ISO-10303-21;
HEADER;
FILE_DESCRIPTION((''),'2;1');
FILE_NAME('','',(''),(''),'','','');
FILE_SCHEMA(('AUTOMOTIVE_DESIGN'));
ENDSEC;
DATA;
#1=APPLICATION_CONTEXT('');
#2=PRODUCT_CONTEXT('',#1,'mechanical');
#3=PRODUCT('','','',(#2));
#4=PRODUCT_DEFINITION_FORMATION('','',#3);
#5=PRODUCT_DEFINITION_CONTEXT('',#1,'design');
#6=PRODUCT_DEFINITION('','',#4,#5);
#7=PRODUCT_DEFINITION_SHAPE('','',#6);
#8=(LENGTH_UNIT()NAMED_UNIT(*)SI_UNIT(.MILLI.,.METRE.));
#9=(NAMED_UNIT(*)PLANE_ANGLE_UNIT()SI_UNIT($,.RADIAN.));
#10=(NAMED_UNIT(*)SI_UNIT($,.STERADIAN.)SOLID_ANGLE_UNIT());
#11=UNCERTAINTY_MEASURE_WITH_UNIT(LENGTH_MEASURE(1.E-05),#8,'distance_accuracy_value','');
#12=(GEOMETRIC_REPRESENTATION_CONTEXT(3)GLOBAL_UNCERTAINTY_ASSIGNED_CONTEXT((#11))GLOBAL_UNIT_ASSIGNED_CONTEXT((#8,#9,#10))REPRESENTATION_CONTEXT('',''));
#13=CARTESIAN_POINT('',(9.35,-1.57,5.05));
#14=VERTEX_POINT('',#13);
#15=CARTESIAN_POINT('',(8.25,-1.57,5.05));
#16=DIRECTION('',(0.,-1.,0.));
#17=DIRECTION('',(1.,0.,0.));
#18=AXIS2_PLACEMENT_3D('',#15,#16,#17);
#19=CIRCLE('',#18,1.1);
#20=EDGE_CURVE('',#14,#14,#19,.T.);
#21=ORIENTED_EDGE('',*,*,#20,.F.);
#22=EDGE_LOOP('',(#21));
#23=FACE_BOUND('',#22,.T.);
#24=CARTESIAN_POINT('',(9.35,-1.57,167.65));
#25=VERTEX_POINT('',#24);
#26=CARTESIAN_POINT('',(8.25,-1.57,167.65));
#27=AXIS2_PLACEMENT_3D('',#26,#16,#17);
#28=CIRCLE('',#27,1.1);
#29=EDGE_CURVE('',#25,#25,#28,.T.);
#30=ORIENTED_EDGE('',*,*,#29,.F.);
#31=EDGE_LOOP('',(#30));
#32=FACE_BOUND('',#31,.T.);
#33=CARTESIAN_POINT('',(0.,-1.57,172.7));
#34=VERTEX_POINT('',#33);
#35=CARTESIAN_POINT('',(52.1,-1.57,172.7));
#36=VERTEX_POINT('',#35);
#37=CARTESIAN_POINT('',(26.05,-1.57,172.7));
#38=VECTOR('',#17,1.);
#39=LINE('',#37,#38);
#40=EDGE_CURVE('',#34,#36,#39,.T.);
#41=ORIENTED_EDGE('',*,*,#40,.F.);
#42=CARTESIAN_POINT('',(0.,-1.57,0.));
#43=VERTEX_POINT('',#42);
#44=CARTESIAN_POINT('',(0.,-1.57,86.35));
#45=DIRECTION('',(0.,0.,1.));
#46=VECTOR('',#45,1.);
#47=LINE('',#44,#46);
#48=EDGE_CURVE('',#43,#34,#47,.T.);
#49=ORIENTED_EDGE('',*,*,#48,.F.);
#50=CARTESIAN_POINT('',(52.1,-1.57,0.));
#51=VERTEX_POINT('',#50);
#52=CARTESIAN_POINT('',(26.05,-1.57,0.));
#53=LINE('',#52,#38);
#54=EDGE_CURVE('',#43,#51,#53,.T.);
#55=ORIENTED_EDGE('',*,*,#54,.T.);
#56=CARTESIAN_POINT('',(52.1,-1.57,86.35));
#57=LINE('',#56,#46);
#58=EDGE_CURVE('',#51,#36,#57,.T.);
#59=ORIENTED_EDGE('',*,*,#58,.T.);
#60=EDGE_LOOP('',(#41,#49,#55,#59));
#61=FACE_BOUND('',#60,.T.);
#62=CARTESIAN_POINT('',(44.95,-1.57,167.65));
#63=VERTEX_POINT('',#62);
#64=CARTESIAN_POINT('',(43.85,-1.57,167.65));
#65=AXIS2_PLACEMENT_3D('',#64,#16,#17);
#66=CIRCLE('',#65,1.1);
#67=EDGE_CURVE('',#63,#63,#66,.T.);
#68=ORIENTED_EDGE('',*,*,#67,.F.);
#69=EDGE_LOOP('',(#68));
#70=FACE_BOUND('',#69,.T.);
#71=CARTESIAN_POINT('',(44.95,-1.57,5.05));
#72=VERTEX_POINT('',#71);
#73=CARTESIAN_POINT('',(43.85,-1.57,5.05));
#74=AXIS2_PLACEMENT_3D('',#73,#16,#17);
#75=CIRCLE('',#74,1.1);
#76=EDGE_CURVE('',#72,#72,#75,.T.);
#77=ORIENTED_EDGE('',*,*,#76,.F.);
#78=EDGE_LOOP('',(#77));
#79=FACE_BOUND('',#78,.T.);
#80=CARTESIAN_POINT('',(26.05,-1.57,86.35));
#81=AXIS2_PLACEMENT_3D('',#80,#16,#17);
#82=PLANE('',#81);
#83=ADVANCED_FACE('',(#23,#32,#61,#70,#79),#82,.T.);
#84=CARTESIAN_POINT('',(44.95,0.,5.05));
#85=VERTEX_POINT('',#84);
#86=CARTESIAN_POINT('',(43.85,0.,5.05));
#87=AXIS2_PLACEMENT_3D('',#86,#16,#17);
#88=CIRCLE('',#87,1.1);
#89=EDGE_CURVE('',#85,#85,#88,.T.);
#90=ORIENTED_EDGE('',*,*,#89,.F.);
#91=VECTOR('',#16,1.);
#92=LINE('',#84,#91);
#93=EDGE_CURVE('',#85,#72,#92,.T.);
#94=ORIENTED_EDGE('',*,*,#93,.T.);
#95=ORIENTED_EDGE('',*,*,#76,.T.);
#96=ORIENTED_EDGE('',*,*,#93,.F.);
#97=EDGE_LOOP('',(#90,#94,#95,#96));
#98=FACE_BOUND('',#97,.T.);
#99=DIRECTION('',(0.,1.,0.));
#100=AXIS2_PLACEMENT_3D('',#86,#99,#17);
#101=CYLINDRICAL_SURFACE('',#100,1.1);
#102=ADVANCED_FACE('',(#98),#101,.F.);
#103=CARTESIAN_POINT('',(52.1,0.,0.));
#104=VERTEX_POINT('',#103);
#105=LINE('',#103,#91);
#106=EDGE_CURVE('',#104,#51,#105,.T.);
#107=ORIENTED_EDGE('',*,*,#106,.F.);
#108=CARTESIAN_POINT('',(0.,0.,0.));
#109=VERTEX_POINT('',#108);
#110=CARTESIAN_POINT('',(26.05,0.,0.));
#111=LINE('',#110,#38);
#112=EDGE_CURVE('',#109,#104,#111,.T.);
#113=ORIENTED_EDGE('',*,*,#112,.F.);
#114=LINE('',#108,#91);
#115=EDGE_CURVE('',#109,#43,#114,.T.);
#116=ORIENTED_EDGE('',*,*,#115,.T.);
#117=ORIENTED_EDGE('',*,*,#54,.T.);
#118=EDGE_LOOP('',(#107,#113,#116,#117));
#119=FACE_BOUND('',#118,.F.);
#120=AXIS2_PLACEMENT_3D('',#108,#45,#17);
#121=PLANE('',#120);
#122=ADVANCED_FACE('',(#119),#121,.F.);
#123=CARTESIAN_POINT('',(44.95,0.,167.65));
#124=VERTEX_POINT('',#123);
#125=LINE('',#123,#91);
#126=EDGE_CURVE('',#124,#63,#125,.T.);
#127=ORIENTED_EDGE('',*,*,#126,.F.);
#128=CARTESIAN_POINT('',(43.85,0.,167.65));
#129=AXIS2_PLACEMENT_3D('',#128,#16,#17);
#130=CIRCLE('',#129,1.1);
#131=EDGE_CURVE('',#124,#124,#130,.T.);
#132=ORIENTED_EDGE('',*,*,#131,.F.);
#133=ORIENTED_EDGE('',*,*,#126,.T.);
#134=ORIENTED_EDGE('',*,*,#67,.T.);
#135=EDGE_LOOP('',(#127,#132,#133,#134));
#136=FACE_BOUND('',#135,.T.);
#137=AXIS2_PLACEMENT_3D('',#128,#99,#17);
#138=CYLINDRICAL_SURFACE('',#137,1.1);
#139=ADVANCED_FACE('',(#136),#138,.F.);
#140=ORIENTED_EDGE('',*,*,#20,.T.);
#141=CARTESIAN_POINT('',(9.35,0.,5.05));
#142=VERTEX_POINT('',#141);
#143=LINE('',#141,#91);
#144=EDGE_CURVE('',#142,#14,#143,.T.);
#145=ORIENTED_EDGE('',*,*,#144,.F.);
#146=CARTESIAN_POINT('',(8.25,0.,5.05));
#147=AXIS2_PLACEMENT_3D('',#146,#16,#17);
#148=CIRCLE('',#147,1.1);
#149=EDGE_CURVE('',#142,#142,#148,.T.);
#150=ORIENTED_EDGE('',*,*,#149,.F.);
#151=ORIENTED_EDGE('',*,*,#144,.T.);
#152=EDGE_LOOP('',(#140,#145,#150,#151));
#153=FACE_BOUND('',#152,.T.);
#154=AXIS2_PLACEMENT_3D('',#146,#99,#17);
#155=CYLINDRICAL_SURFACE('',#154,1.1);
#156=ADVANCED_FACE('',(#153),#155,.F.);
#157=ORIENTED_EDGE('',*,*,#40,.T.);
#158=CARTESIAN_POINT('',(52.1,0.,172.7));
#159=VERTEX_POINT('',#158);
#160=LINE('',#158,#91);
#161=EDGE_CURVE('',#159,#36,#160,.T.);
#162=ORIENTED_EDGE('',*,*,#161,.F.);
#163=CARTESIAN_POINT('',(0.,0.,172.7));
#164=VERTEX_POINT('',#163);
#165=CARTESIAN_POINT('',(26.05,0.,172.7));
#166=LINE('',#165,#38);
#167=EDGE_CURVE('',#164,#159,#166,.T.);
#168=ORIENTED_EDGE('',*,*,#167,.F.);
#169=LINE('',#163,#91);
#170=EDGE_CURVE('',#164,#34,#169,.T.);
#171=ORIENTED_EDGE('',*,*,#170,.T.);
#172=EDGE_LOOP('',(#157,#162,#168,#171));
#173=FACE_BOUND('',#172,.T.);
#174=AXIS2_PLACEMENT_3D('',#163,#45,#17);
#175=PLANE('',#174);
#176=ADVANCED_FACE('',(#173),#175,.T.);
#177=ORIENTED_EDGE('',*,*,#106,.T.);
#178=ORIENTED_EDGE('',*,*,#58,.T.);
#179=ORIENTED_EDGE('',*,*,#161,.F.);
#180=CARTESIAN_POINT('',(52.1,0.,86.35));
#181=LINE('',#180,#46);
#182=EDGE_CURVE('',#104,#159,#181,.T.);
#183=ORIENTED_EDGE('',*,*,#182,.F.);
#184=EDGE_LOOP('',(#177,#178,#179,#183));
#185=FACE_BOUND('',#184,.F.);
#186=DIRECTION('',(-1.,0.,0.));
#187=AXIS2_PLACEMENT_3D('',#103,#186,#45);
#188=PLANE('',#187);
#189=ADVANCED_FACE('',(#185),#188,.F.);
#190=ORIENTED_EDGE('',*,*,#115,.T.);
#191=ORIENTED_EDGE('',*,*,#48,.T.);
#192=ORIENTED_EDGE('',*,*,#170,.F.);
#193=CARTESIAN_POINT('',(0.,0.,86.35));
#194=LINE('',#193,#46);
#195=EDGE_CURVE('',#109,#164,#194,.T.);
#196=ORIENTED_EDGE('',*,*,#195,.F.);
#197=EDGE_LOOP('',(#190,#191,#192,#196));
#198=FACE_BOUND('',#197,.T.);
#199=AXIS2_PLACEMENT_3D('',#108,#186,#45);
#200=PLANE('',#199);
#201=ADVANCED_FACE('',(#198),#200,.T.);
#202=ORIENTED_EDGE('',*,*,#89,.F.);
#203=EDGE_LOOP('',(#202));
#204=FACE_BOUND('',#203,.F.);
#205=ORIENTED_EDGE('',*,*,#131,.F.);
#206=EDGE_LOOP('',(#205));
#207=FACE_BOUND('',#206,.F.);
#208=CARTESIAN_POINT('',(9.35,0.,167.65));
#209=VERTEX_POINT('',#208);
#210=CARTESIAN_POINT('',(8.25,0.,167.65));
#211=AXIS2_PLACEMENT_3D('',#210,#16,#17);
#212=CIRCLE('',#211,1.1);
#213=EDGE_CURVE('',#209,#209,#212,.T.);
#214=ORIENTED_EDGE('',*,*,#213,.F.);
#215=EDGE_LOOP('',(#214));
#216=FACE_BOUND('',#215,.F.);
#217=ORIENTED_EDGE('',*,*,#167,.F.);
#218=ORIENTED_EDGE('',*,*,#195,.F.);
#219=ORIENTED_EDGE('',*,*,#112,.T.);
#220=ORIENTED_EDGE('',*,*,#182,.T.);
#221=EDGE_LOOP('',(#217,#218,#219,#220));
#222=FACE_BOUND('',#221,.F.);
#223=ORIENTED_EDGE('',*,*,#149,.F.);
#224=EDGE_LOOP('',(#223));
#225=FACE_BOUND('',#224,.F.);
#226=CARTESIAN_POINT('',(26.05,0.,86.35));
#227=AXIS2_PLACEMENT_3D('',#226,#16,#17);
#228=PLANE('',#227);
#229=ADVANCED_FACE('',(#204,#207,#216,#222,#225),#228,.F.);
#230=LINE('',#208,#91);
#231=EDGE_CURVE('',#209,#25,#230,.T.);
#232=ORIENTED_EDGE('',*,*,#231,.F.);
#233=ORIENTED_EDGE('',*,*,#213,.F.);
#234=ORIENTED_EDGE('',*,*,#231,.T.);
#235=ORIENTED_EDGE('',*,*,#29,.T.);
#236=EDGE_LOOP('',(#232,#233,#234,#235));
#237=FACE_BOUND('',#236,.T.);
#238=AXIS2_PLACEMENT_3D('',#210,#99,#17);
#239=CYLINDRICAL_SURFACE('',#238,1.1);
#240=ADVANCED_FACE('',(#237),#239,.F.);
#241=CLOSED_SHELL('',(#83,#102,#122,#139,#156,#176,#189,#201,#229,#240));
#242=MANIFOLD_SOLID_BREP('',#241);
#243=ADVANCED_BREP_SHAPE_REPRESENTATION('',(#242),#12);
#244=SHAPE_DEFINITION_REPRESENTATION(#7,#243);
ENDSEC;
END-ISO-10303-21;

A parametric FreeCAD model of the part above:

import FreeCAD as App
import Part
import Sketcher


def add_polygon(sketch, points):
    """Adds a closed chain of lines whose ends are joined by coincident constraints."""
    first, n = sketch.GeometryCount, len(points)
    for a, b in zip(points, points[1:] + points[:1]):
        sketch.addGeometry(Part.LineSegment(App.Vector(*a, 0), App.Vector(*b, 0)), False)
    for i in range(n):
        sketch.addConstraint(Sketcher.Constraint("Coincident", first + i, 2, first + (i + 1) % n, 1))

doc = App.newDocument("Part")
body = doc.addObject("PartDesign::Body", "Body")

sketch1 = body.newObject("Sketcher::SketchObject", "Sketch")
sketch1.AttachmentSupport = (doc.getObject("XZ_Plane"), [""])
sketch1.MapMode = "FlatFace"
add_polygon(sketch1, [(0, 172.7), (0, 0), (52.1, 0), (52.1, 172.7)])
sketch1.addGeometry(Part.Circle(App.Vector(8.2, 5, 0), App.Vector(0, 0, 1), 1.1), False)
sketch1.addGeometry(Part.Circle(App.Vector(43.9, 5, 0), App.Vector(0, 0, 1), 1.1), False)
sketch1.addGeometry(Part.Circle(App.Vector(8.2, 167.7, 0), App.Vector(0, 0, 1), 1.1), False)
sketch1.addGeometry(Part.Circle(App.Vector(43.9, 167.7, 0), App.Vector(0, 0, 1), 1.1), False)
sketch1.addConstraint([
    Sketcher.Constraint("Vertical", 0),
    Sketcher.Constraint("Horizontal", 1),
    Sketcher.Constraint("Vertical", 2),
    Sketcher.Constraint("Horizontal", 3),
    Sketcher.Constraint("Coincident", 0, 2, -1, 1),
    Sketcher.Constraint("Equal", 4, 5),
    Sketcher.Constraint("Equal", 5, 6),
    Sketcher.Constraint("Equal", 6, 7),
    Sketcher.Constraint("Horizontal", 4, 3, 5, 3),
    Sketcher.Constraint("Horizontal", 6, 3, 7, 3),
    Sketcher.Constraint("Vertical", 4, 3, 6, 3),
    Sketcher.Constraint("Vertical", 5, 3, 7, 3),
    Sketcher.Constraint("Diameter", 4, 2.2),
    Sketcher.Constraint("DistanceX", 1, 1, 1, 2, 52.1),
    Sketcher.Constraint("DistanceY", 0, 2, 0, 1, 172.7),
    Sketcher.Constraint("DistanceX", 4, 3, 5, 3, 35.6),
    Sketcher.Constraint("DistanceY", 4, 3, 6, 3, 162.6),
    Sketcher.Constraint("DistanceX", -1, 1, 4, 3, 8.25),
    Sketcher.Constraint("DistanceY", -1, 1, 4, 3, 5.05),
])
pad1 = body.newObject("PartDesign::Pad", "Pad")
pad1.Profile = sketch1
pad1.Length = 1.57

doc.recompute()
